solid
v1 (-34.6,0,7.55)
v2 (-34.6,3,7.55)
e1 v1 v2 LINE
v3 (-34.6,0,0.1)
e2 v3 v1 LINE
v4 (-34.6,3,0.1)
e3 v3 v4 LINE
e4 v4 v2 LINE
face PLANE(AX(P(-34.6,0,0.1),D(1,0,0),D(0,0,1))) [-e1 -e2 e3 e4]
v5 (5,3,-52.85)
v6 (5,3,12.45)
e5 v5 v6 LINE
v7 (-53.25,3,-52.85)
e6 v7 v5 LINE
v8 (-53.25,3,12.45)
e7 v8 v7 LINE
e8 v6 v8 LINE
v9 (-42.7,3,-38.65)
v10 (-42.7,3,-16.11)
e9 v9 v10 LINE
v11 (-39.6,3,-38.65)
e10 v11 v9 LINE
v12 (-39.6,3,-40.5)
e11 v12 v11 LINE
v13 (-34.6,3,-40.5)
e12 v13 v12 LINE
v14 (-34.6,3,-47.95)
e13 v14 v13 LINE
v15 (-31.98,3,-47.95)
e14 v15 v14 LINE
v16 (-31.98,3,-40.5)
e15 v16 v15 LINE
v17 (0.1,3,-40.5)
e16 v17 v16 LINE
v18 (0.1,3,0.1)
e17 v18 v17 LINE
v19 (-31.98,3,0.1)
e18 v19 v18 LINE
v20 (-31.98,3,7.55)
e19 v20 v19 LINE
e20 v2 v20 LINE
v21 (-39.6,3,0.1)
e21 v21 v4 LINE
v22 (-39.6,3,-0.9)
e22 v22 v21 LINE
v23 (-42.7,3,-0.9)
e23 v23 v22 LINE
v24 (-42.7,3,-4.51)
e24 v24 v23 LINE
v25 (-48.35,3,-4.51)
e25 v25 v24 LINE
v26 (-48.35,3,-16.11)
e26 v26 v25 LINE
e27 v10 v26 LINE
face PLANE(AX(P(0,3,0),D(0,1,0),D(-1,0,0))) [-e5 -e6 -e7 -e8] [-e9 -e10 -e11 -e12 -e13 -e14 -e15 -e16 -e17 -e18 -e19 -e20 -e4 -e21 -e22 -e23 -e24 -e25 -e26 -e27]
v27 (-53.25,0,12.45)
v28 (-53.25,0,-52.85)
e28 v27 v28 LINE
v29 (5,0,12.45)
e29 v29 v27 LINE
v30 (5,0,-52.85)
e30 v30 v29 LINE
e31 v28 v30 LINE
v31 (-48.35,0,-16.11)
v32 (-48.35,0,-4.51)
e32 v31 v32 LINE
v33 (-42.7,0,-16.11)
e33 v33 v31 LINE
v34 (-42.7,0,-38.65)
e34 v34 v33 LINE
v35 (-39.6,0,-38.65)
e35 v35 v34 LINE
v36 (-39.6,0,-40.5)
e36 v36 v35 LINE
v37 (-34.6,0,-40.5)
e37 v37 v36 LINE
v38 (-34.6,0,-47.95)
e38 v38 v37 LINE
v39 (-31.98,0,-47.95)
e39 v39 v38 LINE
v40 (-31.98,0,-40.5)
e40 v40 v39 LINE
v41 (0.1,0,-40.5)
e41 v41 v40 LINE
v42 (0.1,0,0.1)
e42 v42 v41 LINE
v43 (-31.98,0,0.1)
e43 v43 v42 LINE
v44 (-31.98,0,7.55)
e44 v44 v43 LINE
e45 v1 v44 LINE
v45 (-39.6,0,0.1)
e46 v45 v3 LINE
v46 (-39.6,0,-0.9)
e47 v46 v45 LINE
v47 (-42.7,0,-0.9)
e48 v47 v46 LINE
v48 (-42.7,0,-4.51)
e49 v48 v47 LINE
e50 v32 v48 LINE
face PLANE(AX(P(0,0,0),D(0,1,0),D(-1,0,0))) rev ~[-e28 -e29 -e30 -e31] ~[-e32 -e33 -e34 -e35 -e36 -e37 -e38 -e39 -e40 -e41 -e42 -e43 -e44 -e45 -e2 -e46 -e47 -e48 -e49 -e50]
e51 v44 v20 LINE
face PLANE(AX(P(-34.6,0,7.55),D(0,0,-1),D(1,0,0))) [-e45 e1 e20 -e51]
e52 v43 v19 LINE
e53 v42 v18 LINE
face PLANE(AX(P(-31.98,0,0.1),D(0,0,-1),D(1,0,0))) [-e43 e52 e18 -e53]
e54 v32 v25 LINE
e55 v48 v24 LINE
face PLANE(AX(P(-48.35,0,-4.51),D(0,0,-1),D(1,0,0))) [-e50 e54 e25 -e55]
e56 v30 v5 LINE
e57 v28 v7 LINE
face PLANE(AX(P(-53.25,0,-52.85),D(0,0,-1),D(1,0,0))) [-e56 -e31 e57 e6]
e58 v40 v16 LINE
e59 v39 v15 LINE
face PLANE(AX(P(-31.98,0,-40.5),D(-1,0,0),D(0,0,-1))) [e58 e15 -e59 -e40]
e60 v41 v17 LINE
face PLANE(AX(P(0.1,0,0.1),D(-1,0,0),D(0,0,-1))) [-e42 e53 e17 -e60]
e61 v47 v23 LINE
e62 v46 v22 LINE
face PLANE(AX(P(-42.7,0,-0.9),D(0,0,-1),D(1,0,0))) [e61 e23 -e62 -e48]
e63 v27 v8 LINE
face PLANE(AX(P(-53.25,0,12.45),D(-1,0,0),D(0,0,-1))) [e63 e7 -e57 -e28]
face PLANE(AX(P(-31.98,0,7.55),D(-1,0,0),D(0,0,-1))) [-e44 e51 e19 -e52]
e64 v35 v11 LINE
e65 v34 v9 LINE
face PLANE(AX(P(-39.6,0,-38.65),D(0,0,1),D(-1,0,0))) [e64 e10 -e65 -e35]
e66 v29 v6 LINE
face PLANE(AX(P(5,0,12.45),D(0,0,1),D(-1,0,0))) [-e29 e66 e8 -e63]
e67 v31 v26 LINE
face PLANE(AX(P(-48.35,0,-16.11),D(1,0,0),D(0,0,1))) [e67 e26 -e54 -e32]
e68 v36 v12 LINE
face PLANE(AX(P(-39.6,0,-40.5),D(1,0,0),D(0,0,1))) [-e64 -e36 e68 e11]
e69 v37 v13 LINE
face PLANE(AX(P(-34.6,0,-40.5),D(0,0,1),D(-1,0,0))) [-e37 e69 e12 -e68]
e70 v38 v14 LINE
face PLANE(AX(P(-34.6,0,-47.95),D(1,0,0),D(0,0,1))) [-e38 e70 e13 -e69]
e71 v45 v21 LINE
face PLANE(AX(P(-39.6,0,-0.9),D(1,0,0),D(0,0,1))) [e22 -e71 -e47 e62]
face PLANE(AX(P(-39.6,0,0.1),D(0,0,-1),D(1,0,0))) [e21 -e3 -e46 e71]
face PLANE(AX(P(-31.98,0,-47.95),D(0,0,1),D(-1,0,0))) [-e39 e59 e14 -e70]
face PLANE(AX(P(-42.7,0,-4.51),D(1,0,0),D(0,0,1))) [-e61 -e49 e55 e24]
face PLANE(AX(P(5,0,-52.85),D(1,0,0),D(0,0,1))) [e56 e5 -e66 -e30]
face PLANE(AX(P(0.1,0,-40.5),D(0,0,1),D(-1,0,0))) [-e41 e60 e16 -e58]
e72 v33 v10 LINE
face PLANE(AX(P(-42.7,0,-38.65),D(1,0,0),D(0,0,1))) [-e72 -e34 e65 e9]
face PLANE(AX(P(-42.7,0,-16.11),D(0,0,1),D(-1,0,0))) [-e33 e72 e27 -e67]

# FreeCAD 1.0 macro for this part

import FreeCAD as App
import Part
import Sketcher

doc = App.newDocument("Part")
body = doc.addObject("PartDesign::Body", "Body")

# Sketch on XZ plane
sketch1 = body.newObject("Sketcher::SketchObject", "Sketch")
sketch1.AttachmentSupport = (doc.getObject("XZ_Plane"), [""])
sketch1.MapMode = "FlatFace"
sketch1.addGeometry(Part.LineSegment(App.Vector(-53.25, 12.45, 0), App.Vector(5, 12.45, 0)), False)
sketch1.addGeometry(Part.LineSegment(App.Vector(5, 12.45, 0), App.Vector(5, -52.85, 0)), False)
sketch1.addGeometry(Part.LineSegment(App.Vector(5, -52.85, 0), App.Vector(-53.25, -52.85, 0)), False)
sketch1.addGeometry(Part.LineSegment(App.Vector(-53.25, -52.85, 0), App.Vector(-53.25, 12.45, 0)), False)
sketch1.addGeometry(Part.LineSegment(App.Vector(-31.98, 7.55, 0), App.Vector(-34.6, 7.55, 0)), False)
sketch1.addGeometry(Part.LineSegment(App.Vector(-34.6, 7.55, 0), App.Vector(-34.6, 0.1, 0)), False)
sketch1.addGeometry(Part.LineSegment(App.Vector(-34.6, 0.1, 0), App.Vector(-39.6, 0.1, 0)), False)
sketch1.addGeometry(Part.LineSegment(App.Vector(-39.6, 0.1, 0), App.Vector(-39.6, -0.9, 0)), False)
sketch1.addGeometry(Part.LineSegment(App.Vector(-39.6, -0.9, 0), App.Vector(-42.7, -0.9, 0)), False)
sketch1.addGeometry(Part.LineSegment(App.Vector(-42.7, -0.9, 0), App.Vector(-42.7, -4.51, 0)), False)
sketch1.addGeometry(Part.LineSegment(App.Vector(-42.7, -4.51, 0), App.Vector(-48.35, -4.51, 0)), False)
sketch1.addGeometry(Part.LineSegment(App.Vector(-48.35, -4.51, 0), App.Vector(-48.35, -16.11, 0)), False)
sketch1.addGeometry(Part.LineSegment(App.Vector(-48.35, -16.11, 0), App.Vector(-42.7, -16.11, 0)), False)
sketch1.addGeometry(Part.LineSegment(App.Vector(-42.7, -16.11, 0), App.Vector(-42.7, -38.65, 0)), False)
sketch1.addGeometry(Part.LineSegment(App.Vector(-42.7, -38.65, 0), App.Vector(-39.6, -38.65, 0)), False)
sketch1.addGeometry(Part.LineSegment(App.Vector(-39.6, -38.65, 0), App.Vector(-39.6, -40.5, 0)), False)
sketch1.addGeometry(Part.LineSegment(App.Vector(-39.6, -40.5, 0), App.Vector(-34.6, -40.5, 0)), False)
sketch1.addGeometry(Part.LineSegment(App.Vector(-34.6, -40.5, 0), App.Vector(-34.6, -47.95, 0)), False)
sketch1.addGeometry(Part.LineSegment(App.Vector(-34.6, -47.95, 0), App.Vector(-31.98, -47.95, 0)), False)
sketch1.addGeometry(Part.LineSegment(App.Vector(-31.98, -47.95, 0), App.Vector(-31.98, -40.5, 0)), False)
sketch1.addGeometry(Part.LineSegment(App.Vector(-31.98, -40.5, 0), App.Vector(0.1, -40.5, 0)), False)
sketch1.addGeometry(Part.LineSegment(App.Vector(0.1, -40.5, 0), App.Vector(0.1, 0.1, 0)), False)
sketch1.addGeometry(Part.LineSegment(App.Vector(0.1, 0.1, 0), App.Vector(-31.98, 0.1, 0)), False)
sketch1.addGeometry(Part.LineSegment(App.Vector(-31.98, 0.1, 0), App.Vector(-31.98, 7.55, 0)), False)
sketch1.addConstraint(Sketcher.Constraint("Coincident", 0, 2, 1, 1))
sketch1.addConstraint(Sketcher.Constraint("Coincident", 1, 2, 2, 1))
sketch1.addConstraint(Sketcher.Constraint("Coincident", 2, 2, 3, 1))
sketch1.addConstraint(Sketcher.Constraint("Coincident", 3, 2, 0, 1))
sketch1.addConstraint(Sketcher.Constraint("Coincident", 4, 2, 5, 1))
sketch1.addConstraint(Sketcher.Constraint("Coincident", 5, 2, 6, 1))
sketch1.addConstraint(Sketcher.Constraint("Coincident", 6, 2, 7, 1))
sketch1.addConstraint(Sketcher.Constraint("Coincident", 7, 2, 8, 1))
sketch1.addConstraint(Sketcher.Constraint("Coincident", 8, 2, 9, 1))
sketch1.addConstraint(Sketcher.Constraint("Coincident", 9, 2, 10, 1))
sketch1.addConstraint(Sketcher.Constraint("Coincident", 10, 2, 11, 1))
sketch1.addConstraint(Sketcher.Constraint("Coincident", 11, 2, 12, 1))
sketch1.addConstraint(Sketcher.Constraint("Coincident", 12, 2, 13, 1))
sketch1.addConstraint(Sketcher.Constraint("Coincident", 13, 2, 14, 1))
sketch1.addConstraint(Sketcher.Constraint("Coincident", 14, 2, 15, 1))
sketch1.addConstraint(Sketcher.Constraint("Coincident", 15, 2, 16, 1))
sketch1.addConstraint(Sketcher.Constraint("Coincident", 16, 2, 17, 1))
sketch1.addConstraint(Sketcher.Constraint("Coincident", 17, 2, 18, 1))
sketch1.addConstraint(Sketcher.Constraint("Coincident", 18, 2, 19, 1))
sketch1.addConstraint(Sketcher.Constraint("Coincident", 19, 2, 20, 1))
sketch1.addConstraint(Sketcher.Constraint("Coincident", 20, 2, 21, 1))
sketch1.addConstraint(Sketcher.Constraint("Coincident", 21, 2, 22, 1))
sketch1.addConstraint(Sketcher.Constraint("Coincident", 22, 2, 23, 1))
sketch1.addConstraint(Sketcher.Constraint("Coincident", 23, 2, 4, 1))
sketch1.addConstraint(Sketcher.Constraint("Horizontal", 0))
sketch1.addConstraint(Sketcher.Constraint("Vertical", 1))
sketch1.addConstraint(Sketcher.Constraint("Horizontal", 2))
sketch1.addConstraint(Sketcher.Constraint("Vertical", 3))
sketch1.addConstraint(Sketcher.Constraint("Horizontal", 4))
sketch1.addConstraint(Sketcher.Constraint("Vertical", 5))
sketch1.addConstraint(Sketcher.Constraint("Horizontal", 6))
sketch1.addConstraint(Sketcher.Constraint("Vertical", 7))
sketch1.addConstraint(Sketcher.Constraint("Horizontal", 8))
sketch1.addConstraint(Sketcher.Constraint("Vertical", 9))
sketch1.addConstraint(Sketcher.Constraint("Horizontal", 10))
sketch1.addConstraint(Sketcher.Constraint("Vertical", 11))
sketch1.addConstraint(Sketcher.Constraint("Horizontal", 12))
sketch1.addConstraint(Sketcher.Constraint("Vertical", 13))
sketch1.addConstraint(Sketcher.Constraint("Horizontal", 14))
sketch1.addConstraint(Sketcher.Constraint("Vertical", 15))
sketch1.addConstraint(Sketcher.Constraint("Horizontal", 16))
sketch1.addConstraint(Sketcher.Constraint("Vertical", 17))
sketch1.addConstraint(Sketcher.Constraint("Horizontal", 18))
sketch1.addConstraint(Sketcher.Constraint("Vertical", 19))
sketch1.addConstraint(Sketcher.Constraint("Horizontal", 20))
sketch1.addConstraint(Sketcher.Constraint("Vertical", 21))
sketch1.addConstraint(Sketcher.Constraint("Horizontal", 22))
sketch1.addConstraint(Sketcher.Constraint("Vertical", 23))
sketch1.addConstraint(Sketcher.Constraint("Horizontal", 16, 2, 19, 2))
sketch1.addConstraint(Sketcher.Constraint("Horizontal", 6, 2, 21, 2))
sketch1.addConstraint(Sketcher.Constraint("Vertical", 9, 2, 12, 2))
sketch1.addConstraint(Sketcher.Constraint("Vertical", 7, 2, 14, 2))
sketch1.addConstraint(Sketcher.Constraint("Vertical", 5, 2, 16, 2))
sketch1.addConstraint(Sketcher.Constraint("Vertical", 19, 2, 22, 2))
sketch1.addConstraint(Sketcher.Constraint("Equal", 5, 17))
sketch1.addConstraint(Sketcher.Constraint("DistanceX", 6, 2, 6, 1, 5.0))
sketch1.addConstraint(Sketcher.Constraint("DistanceX", 8, 2, 8, 1, 3.1))
sketch1.addConstraint(Sketcher.Constraint("DistanceX", -1, 1, 0, 2, 5.0))
sketch1.addConstraint(Sketcher.Constraint("DistanceX", 10, 2, 10, 1, 5.65))
sketch1.addConstraint(Sketcher.Constraint("DistanceY", -1, 1, 5, 2, 0.1))
sketch1.addConstraint(Sketcher.Constraint("DistanceX", -1, 1, 20, 2, 0.1))
sketch1.addConstraint(Sketcher.Constraint("DistanceY", 7, 2, 7, 1, 1.0))
sketch1.addConstraint(Sketcher.Constraint("DistanceY", 9, 2, 6, 2, 4.61))
sketch1.addConstraint(Sketcher.Constraint("DistanceY", 1, 2, 1, 1, 65.3))
sketch1.addConstraint(Sketcher.Constraint("DistanceY", 11, 2, 11, 1, 11.6))
sketch1.addConstraint(Sketcher.Constraint("DistanceY", 21, 1, 21, 2, 40.6))
sketch1.addConstraint(Sketcher.Constraint("DistanceX", 0, 1, 0, 2, 58.25))
sketch1.addConstraint(Sketcher.Constraint("DistanceX", 4, 2, 4, 1, 2.62))
sketch1.addConstraint(Sketcher.Constraint("DistanceX", 20, 1, 20, 2, 32.08))
sketch1.addConstraint(Sketcher.Constraint("DistanceY", 5, 2, 5, 1, 7.45))
sketch1.addConstraint(Sketcher.Constraint("DistanceY", 13, 2, 13, 1, 22.54))
sketch1.addConstraint(Sketcher.Constraint("DistanceY", 4, 2, 3, 2, 4.9))
pad1 = body.newObject("PartDesign::Pad", "Pad")
pad1.Profile = sketch1
pad1.Length = 3
pad1.Reversed = True

doc.recompute()
